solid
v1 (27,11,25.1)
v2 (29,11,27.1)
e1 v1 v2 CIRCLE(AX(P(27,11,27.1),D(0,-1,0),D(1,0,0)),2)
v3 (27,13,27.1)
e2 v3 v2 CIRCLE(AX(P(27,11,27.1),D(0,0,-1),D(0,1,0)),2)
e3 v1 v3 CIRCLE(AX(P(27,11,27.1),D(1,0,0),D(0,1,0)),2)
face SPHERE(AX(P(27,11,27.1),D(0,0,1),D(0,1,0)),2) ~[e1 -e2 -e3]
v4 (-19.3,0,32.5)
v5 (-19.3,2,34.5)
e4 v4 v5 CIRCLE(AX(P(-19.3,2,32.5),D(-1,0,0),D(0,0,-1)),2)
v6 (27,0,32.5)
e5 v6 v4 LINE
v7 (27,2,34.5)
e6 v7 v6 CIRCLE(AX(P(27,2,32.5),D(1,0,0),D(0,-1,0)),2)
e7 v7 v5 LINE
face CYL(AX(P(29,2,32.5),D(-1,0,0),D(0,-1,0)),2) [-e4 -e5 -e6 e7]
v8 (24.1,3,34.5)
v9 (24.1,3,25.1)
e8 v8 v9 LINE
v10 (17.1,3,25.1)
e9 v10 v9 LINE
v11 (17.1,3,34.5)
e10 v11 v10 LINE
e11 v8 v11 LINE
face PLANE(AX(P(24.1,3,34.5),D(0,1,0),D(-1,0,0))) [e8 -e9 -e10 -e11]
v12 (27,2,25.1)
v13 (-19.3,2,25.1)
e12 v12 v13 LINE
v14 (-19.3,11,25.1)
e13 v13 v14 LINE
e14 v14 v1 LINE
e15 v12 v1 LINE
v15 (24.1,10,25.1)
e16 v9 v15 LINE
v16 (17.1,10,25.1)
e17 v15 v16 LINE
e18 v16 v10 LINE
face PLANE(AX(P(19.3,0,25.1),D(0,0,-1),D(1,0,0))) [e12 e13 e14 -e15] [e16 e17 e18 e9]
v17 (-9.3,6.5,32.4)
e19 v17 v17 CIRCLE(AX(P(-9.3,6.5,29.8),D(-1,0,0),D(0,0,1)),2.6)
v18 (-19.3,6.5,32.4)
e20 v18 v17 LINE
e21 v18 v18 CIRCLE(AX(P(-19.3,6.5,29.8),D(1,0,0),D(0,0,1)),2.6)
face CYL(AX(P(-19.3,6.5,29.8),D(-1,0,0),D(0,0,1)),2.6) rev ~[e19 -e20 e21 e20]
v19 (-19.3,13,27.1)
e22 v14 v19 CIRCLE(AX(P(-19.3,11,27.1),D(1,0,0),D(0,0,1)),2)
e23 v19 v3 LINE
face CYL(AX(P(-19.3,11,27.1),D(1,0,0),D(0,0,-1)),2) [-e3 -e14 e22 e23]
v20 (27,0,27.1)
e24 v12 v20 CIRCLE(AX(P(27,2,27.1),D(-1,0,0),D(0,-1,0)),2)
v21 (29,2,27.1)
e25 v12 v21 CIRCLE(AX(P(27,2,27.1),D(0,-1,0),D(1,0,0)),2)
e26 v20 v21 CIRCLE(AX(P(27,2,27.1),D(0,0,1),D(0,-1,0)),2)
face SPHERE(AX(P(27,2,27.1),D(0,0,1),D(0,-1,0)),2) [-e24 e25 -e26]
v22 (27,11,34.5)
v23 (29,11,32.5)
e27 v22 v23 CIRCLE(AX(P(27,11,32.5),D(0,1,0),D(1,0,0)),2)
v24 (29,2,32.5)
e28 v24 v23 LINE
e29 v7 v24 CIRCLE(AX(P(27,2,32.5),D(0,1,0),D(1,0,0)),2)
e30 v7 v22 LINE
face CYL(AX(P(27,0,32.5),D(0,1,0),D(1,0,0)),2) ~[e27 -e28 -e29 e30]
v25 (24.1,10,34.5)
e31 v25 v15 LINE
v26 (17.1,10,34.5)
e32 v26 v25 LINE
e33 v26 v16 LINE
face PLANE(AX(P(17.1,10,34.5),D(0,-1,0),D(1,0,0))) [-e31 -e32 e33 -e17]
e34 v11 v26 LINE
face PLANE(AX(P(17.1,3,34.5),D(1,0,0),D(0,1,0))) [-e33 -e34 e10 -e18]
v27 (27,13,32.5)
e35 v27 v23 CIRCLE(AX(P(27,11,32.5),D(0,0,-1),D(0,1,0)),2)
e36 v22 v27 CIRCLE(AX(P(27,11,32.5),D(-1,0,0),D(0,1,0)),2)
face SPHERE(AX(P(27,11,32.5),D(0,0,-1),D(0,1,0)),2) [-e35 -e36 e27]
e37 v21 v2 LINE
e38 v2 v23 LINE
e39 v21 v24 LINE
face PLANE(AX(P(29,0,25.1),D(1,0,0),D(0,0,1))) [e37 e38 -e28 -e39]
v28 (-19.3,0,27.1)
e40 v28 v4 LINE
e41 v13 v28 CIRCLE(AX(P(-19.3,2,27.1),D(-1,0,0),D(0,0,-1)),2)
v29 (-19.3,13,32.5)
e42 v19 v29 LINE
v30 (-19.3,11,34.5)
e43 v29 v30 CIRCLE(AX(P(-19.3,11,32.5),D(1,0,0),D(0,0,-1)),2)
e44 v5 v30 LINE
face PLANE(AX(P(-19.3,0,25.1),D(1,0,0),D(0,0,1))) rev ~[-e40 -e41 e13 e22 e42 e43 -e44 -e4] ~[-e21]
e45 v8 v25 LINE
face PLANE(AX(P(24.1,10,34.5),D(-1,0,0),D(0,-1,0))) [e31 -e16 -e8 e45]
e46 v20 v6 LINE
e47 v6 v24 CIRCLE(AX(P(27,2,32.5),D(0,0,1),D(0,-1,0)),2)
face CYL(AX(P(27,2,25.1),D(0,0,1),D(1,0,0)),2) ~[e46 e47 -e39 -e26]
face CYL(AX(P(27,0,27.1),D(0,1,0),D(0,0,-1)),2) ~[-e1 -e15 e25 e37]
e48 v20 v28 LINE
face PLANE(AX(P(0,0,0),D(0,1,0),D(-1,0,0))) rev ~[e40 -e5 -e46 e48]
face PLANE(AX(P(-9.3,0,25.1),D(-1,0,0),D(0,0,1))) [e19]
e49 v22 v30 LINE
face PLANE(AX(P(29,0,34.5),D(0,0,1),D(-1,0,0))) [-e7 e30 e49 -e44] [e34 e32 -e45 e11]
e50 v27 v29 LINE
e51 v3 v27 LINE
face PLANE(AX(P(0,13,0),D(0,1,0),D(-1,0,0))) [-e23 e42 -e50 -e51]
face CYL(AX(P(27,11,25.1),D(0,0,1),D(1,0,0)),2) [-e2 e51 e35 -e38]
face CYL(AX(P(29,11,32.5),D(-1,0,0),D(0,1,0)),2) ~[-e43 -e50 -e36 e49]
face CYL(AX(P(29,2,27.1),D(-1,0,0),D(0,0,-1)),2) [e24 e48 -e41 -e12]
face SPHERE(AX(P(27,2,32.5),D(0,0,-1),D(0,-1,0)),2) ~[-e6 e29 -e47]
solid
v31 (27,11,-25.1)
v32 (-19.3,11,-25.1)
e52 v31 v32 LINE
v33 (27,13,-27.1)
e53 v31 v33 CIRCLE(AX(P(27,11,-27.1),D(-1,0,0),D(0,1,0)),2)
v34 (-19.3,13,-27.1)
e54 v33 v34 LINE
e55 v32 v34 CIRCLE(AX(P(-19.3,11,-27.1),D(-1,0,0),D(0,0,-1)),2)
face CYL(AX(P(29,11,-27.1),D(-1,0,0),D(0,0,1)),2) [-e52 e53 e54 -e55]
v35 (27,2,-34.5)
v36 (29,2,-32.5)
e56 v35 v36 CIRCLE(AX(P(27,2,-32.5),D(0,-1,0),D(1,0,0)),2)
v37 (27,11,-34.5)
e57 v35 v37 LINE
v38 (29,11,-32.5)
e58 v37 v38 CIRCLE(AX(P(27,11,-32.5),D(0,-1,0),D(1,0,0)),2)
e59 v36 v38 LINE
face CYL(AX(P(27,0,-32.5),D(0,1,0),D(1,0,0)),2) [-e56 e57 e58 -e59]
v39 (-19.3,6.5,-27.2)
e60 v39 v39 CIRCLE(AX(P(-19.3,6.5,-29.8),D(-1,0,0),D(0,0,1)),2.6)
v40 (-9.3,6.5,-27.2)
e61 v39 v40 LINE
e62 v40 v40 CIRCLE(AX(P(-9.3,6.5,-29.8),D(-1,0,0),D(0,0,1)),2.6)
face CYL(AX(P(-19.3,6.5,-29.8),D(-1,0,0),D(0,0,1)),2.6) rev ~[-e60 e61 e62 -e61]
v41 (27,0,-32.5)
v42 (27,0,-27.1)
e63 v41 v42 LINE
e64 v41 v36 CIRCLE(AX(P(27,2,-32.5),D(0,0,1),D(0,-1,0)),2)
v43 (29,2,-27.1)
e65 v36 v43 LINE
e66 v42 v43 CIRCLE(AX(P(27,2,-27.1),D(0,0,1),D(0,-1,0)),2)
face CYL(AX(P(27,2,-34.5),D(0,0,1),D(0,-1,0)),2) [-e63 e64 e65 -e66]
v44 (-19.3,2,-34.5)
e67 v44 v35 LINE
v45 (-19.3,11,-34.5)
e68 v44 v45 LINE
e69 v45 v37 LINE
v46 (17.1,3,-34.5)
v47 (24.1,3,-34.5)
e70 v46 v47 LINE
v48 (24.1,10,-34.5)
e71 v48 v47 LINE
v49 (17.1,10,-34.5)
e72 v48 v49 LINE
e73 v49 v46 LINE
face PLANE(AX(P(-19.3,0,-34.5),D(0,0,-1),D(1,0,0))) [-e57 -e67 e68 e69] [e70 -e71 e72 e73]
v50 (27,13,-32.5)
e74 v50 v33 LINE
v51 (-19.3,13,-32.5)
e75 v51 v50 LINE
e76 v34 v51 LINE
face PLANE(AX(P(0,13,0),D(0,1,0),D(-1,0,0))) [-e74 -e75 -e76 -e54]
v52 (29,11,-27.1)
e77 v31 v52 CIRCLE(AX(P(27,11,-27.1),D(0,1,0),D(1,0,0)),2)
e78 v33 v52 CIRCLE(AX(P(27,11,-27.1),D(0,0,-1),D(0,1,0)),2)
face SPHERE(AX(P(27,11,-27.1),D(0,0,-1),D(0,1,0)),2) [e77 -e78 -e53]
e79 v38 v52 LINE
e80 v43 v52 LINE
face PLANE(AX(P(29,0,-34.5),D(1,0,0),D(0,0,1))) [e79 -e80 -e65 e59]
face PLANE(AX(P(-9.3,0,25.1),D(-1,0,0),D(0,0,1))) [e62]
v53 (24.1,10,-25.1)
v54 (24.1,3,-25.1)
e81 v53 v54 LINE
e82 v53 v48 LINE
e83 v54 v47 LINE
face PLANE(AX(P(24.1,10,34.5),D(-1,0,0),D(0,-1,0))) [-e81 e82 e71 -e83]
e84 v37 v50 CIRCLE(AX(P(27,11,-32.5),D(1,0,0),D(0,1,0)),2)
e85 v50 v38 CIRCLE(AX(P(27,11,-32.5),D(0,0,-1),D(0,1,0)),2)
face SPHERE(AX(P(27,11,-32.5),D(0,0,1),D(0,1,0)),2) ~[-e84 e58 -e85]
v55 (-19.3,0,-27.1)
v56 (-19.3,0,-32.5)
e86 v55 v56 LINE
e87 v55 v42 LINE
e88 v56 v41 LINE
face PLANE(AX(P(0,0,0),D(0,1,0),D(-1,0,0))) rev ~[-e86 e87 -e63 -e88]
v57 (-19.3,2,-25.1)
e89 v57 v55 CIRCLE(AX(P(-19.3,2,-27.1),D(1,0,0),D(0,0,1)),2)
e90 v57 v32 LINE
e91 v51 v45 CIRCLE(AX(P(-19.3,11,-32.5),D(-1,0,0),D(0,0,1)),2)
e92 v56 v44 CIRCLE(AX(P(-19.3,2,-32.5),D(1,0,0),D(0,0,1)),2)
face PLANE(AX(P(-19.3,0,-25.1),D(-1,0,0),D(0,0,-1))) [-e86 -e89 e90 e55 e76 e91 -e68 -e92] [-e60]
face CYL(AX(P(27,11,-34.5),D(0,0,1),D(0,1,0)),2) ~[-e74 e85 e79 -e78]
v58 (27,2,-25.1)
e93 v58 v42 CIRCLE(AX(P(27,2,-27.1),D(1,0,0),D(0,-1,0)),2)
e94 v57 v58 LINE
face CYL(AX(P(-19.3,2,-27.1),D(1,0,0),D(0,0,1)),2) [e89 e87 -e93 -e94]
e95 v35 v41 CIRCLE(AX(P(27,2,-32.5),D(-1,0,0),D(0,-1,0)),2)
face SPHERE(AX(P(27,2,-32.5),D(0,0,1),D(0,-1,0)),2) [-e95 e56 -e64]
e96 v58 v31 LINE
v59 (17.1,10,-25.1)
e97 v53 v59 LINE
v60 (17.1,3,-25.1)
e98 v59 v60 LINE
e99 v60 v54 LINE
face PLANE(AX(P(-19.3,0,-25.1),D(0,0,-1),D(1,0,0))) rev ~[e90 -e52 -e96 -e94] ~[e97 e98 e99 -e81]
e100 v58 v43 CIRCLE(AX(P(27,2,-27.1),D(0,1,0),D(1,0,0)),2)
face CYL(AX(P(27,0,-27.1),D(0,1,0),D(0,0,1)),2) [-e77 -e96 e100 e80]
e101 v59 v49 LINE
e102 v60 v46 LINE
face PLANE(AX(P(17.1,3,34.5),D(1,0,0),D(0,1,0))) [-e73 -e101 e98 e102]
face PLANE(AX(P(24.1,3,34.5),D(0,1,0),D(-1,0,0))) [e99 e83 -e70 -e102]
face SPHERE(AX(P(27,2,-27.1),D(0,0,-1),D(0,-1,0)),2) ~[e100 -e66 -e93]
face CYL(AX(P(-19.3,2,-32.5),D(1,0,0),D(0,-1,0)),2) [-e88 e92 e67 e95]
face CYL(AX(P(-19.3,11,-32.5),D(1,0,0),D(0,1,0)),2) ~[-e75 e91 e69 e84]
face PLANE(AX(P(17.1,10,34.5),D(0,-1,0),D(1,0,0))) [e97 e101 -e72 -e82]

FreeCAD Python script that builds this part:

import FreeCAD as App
import Part
import Sketcher

V = App.Vector


def edges_at(feature, points):
    """Names of the edges that pass closest to the given points."""
    edges = feature.Shape.Edges
    near = lambda p: min(range(len(edges)), key=lambda i: edges[i].distToShape(Part.Vertex(*p))[0])
    return sorted({f"Edge{near(p) + 1}" for p in points})


def add_polygon(sketch, points):
    """Adds a closed chain of lines whose ends are joined by coincident constraints."""
    first, n = sketch.GeometryCount, len(points)
    for a, b in zip(points, points[1:] + points[:1]):
        sketch.addGeometry(Part.LineSegment(App.Vector(*a, 0), App.Vector(*b, 0)), False)
    for i in range(n):
        sketch.addConstraint(Sketcher.Constraint("Coincident", first + i, 2, first + (i + 1) % n, 1))

doc = App.newDocument("Part")
params = doc.addObject("Spreadsheet::Sheet", "Params")
for row, (alias, value) in enumerate([
    ("sketch1_width", "48.3 mm"),
    ("pad1_length", "13 mm"),
    ("sketch2_diameter", "5.2 mm"),
    ("pocket1_length", "10 mm"),
    ("sketch3_width", "7 mm"),
    ("pocket2_length", "98.25 mm"),
    ("fillet_radius", "2 mm"),
], start=1):
    params.set(f"A{row}", alias)
    params.set(f"B{row}", "=" + value)
    params.setAlias(f"B{row}", alias)

body = doc.addObject("PartDesign::Body", "Body")
body.AllowCompound = True

# Sketch on XZ plane
sketch1 = body.newObject("Sketcher::SketchObject", "Sketch")
sketch1.AttachmentSupport = (doc.getObject("XZ_Plane"), [""])
sketch1.MapMode = "FlatFace"
add_polygon(sketch1, [(29, 25), (-19, 25), (-19, 34), (29, 34)])  # lines 0-3
add_polygon(sketch1, [(-19, -25), (29, -25), (29, -34), (-19, -34)])  # lines 4-7
sketch1.addConstraint([
    Sketcher.Constraint("Horizontal", 0),
    Sketcher.Constraint("Vertical", 1),
    Sketcher.Constraint("Horizontal", 2),
    Sketcher.Constraint("Vertical", 3),
    Sketcher.Constraint("Horizontal", 4),
    Sketcher.Constraint("Vertical", 5),
    Sketcher.Constraint("Horizontal", 6),
    Sketcher.Constraint("Vertical", 7),
    Sketcher.Constraint("Symmetric", 3, 2, 4, 2, -1),
    Sketcher.Constraint("Symmetric", 1, 2, 6, 2, -1),
    Sketcher.Constraint("DistanceY", 5, 2, 2, 2, 69.0),
    Sketcher.Constraint("DistanceY", 4, 2, 3, 2, 50.2),
    Sketcher.Constraint("DistanceX", 0, 2, 0, 1, 48.3),
    Sketcher.Constraint("DistanceX", -1, 1, 2, 2, 29.0),
])
sketch1.setExpression("Constraints[20]", "Params.sketch1_width")
pad1 = body.newObject("PartDesign::Pad", "Pad")
pad1.Profile = sketch1
pad1.setExpression("Length", "Params.pad1_length")
pad1.Reversed = True

# Sketch on YZ plane
sketch2 = body.newObject("Sketcher::SketchObject", "Sketch001")
sketch2.AttachmentSupport = (doc.getObject("YZ_Plane"), [""])
sketch2.MapMode = "FlatFace"
sketch2.AttachmentOffset = App.Placement(V(0, 0, -19.3), App.Rotation())
sketch2.addGeometry([
    Part.Circle(V(6.5, 29.8, 0), V(0, 0, 1), 2.6),
    Part.Circle(V(6.5, -29.8, 0), V(0, 0, 1), 2.6),
], False)
sketch2.addConstraint([
    Sketcher.Constraint("Equal", 0, 1),
    Sketcher.Constraint("Symmetric", 0, 3, 1, 3, -1),
    Sketcher.Constraint("Diameter", 0, 5.2),
    Sketcher.Constraint("DistanceX", -1, 1, 0, 3, 6.5),
    Sketcher.Constraint("DistanceY", -1, 1, 0, 3, 29.8),
])
sketch2.setExpression("Constraints[2]", "Params.sketch2_diameter")
pocket1 = body.newObject("PartDesign::Pocket", "Pocket")
pocket1.Profile = sketch2
pocket1.setExpression("Length", "Params.pocket1_length")
pocket1.Reversed = True

# Sketch on XY plane
sketch3 = body.newObject("Sketcher::SketchObject", "Sketch002")
sketch3.AttachmentSupport = (doc.getObject("XY_Plane"), [""])
sketch3.MapMode = "FlatFace"
sketch3.AttachmentOffset = App.Placement(V(0, 0, 34.5), App.Rotation())
add_polygon(sketch3, [(17, 3), (24, 3), (24, 10), (17, 10)])  # lines 0-3
sketch3.addConstraint([
    Sketcher.Constraint("Horizontal", 0),
    Sketcher.Constraint("Vertical", 1),
    Sketcher.Constraint("Horizontal", 2),
    Sketcher.Constraint("Vertical", 3),
    Sketcher.Constraint("Equal", 2, 1),
    Sketcher.Constraint("DistanceX", 0, 1, 0, 2, 7.0),
    Sketcher.Constraint("DistanceY", -1, 1, 0, 2, 3.0),
    Sketcher.Constraint("DistanceX", -1, 1, 0, 2, 24.1),
])
sketch3.setExpression("Constraints[9]", "Params.sketch3_width")
pocket2 = body.newObject("PartDesign::Pocket", "Pocket001")
pocket2.Profile = sketch3
pocket2.setExpression("Length", "Params.pocket2_length")
doc.recompute()

fillet = body.newObject("PartDesign::Fillet", "Fillet")
fillet.Base = (pocket2, edges_at(pocket2, [
    (29, 13, 29.8),
    (29, 0, 29.8),
    (29, 0, -29.8),
    (29, 13, -29.8),
    (4.85, 13, -34.5),
    (4.85, 13, 34.5),
    (4.85, 0, 34.5),
    (4.85, 0, -34.5),
    (4.85, 13, 25.1),
    (4.85, 0, 25.1),
    (4.85, 0, -25.1),
    (4.85, 13, -25.1),
    (29, 6.5, 34.5),
    (29, 6.5, 25.1),
    (29, 6.5, -25.1),
    (29, 6.5, -34.5),
]))
fillet.setExpression("Radius", "Params.fillet_radius")

doc.recompute()
